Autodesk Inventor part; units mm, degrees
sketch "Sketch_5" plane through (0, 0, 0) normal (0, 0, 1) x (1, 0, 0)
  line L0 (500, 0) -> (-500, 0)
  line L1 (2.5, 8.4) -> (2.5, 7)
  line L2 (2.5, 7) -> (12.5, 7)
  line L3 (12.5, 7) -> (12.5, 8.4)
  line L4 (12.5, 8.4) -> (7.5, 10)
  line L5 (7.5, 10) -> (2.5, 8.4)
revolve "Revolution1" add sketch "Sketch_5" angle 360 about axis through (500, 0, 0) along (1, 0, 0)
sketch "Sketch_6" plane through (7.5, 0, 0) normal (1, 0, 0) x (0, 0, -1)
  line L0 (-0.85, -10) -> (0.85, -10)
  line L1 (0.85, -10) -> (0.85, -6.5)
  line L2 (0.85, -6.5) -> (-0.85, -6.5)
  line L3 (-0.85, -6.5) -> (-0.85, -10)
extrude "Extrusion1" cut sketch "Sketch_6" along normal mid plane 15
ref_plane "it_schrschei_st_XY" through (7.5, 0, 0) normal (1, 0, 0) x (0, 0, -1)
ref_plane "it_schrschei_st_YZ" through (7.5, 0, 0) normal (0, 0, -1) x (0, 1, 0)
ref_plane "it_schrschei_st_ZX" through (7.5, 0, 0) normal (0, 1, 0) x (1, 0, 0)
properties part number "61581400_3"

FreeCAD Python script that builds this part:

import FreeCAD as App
import Part
import Sketcher

doc = App.newDocument("Part")
body = doc.addObject("PartDesign::Body", "Body")

# Sketch on XY plane
sketch1 = doc.addObject("Sketcher::SketchObject", "Sketch")
body.addObject(sketch1)
sketch1.AttachmentSupport = (doc.XY_Plane, [""])
sketch1.MapMode = "FlatFace"
sketch1.addGeometry([
    Part.LineSegment(App.Vector(7.5, 10, 0), App.Vector(2.5, 8.4, 0)),  # 0
    Part.LineSegment(App.Vector(2.5, 8.4, 0), App.Vector(2.5, 7, 0)),  # 1
    Part.LineSegment(App.Vector(2.5, 7, 0), App.Vector(12.5, 7, 0)),  # 2
    Part.LineSegment(App.Vector(12.5, 7, 0), App.Vector(12.5, 8.4, 0)),  # 3
    Part.LineSegment(App.Vector(12.5, 8.4, 0), App.Vector(7.5, 10, 0)),  # 4
], False)
sketch1.addConstraint([
    Sketcher.Constraint("Coincident", 0, 2, 1, 1),
    Sketcher.Constraint("Coincident", 1, 2, 2, 1),
    Sketcher.Constraint("Coincident", 2, 2, 3, 1),
    Sketcher.Constraint("Coincident", 3, 2, 4, 1),
    Sketcher.Constraint("Coincident", 4, 2, 0, 1),
    Sketcher.Constraint("Vertical", 1),
    Sketcher.Constraint("Horizontal", 2),
    Sketcher.Constraint("Vertical", 3),
    Sketcher.Constraint("Horizontal", 0, 2, 3, 2),
    Sketcher.Constraint("Equal", 0, 4),
    Sketcher.Constraint("DistanceX", 2, 1, 2, 2, 10.0),
    Sketcher.Constraint("DistanceY", 1, 2, 1, 1, 1.4),
    Sketcher.Constraint("DistanceY", -1, 1, 1, 2, 7.0),
    Sketcher.Constraint("DistanceY", -1, 1, 4, 2, 10.0),
    Sketcher.Constraint("DistanceX", -1, 1, 0, 2, 2.5),
])
revolution = doc.addObject("PartDesign::Revolution", "Revolution")
body.addObject(revolution)
revolution.Profile = sketch1
revolution.ReferenceAxis = (sketch1, ["H_Axis"])
revolution.Angle = 360

# Sketch on YZ plane
sketch2 = doc.addObject("Sketcher::SketchObject", "Sketch001")
body.addObject(sketch2)
sketch2.AttachmentSupport = (doc.YZ_Plane, [""])
sketch2.MapMode = "FlatFace"
sketch2.AttachmentOffset = App.Placement(App.Vector(0, 0, 7.5), App.Rotation())
sketch2.addGeometry([
    Part.LineSegment(App.Vector(-6.5, 0.8, 0), App.Vector(-10, 0.8, 0)),
    Part.LineSegment(App.Vector(-10, 0.8, 0), App.Vector(-10, -0.8, 0)),
    Part.LineSegment(App.Vector(-10, -0.8, 0), App.Vector(-6.5, -0.8, 0)),
    Part.LineSegment(App.Vector(-6.5, -0.8, 0), App.Vector(-6.5, 0.8, 0)),
], False)
sketch2.addConstraint([
    Sketcher.Constraint("Coincident", 0, 2, 1, 1),
    Sketcher.Constraint("Coincident", 1, 2, 2, 1),
    Sketcher.Constraint("Coincident", 2, 2, 3, 1),
    Sketcher.Constraint("Coincident", 3, 2, 0, 1),
    Sketcher.Constraint("Horizontal", 0),
    Sketcher.Constraint("Vertical", 1),
    Sketcher.Constraint("Horizontal", 2),
    Sketcher.Constraint("Vertical", 3),
    Sketcher.Constraint("DistanceX", 0, 2, 0, 1, 3.5),
    Sketcher.Constraint("DistanceY", 1, 2, 1, 1, 1.7),
    Sketcher.Constraint("DistanceX", 0, 2, -1, 1, 10.0),
    Sketcher.Constraint("DistanceY", -1, 1, 0, 2, 0.85),
])
pocket1 = doc.addObject("PartDesign::Pocket", "Pocket")
body.addObject(pocket1)
pocket1.Profile = sketch2
pocket1.Length = 15
pocket1.Midplane = True

doc.recompute()
